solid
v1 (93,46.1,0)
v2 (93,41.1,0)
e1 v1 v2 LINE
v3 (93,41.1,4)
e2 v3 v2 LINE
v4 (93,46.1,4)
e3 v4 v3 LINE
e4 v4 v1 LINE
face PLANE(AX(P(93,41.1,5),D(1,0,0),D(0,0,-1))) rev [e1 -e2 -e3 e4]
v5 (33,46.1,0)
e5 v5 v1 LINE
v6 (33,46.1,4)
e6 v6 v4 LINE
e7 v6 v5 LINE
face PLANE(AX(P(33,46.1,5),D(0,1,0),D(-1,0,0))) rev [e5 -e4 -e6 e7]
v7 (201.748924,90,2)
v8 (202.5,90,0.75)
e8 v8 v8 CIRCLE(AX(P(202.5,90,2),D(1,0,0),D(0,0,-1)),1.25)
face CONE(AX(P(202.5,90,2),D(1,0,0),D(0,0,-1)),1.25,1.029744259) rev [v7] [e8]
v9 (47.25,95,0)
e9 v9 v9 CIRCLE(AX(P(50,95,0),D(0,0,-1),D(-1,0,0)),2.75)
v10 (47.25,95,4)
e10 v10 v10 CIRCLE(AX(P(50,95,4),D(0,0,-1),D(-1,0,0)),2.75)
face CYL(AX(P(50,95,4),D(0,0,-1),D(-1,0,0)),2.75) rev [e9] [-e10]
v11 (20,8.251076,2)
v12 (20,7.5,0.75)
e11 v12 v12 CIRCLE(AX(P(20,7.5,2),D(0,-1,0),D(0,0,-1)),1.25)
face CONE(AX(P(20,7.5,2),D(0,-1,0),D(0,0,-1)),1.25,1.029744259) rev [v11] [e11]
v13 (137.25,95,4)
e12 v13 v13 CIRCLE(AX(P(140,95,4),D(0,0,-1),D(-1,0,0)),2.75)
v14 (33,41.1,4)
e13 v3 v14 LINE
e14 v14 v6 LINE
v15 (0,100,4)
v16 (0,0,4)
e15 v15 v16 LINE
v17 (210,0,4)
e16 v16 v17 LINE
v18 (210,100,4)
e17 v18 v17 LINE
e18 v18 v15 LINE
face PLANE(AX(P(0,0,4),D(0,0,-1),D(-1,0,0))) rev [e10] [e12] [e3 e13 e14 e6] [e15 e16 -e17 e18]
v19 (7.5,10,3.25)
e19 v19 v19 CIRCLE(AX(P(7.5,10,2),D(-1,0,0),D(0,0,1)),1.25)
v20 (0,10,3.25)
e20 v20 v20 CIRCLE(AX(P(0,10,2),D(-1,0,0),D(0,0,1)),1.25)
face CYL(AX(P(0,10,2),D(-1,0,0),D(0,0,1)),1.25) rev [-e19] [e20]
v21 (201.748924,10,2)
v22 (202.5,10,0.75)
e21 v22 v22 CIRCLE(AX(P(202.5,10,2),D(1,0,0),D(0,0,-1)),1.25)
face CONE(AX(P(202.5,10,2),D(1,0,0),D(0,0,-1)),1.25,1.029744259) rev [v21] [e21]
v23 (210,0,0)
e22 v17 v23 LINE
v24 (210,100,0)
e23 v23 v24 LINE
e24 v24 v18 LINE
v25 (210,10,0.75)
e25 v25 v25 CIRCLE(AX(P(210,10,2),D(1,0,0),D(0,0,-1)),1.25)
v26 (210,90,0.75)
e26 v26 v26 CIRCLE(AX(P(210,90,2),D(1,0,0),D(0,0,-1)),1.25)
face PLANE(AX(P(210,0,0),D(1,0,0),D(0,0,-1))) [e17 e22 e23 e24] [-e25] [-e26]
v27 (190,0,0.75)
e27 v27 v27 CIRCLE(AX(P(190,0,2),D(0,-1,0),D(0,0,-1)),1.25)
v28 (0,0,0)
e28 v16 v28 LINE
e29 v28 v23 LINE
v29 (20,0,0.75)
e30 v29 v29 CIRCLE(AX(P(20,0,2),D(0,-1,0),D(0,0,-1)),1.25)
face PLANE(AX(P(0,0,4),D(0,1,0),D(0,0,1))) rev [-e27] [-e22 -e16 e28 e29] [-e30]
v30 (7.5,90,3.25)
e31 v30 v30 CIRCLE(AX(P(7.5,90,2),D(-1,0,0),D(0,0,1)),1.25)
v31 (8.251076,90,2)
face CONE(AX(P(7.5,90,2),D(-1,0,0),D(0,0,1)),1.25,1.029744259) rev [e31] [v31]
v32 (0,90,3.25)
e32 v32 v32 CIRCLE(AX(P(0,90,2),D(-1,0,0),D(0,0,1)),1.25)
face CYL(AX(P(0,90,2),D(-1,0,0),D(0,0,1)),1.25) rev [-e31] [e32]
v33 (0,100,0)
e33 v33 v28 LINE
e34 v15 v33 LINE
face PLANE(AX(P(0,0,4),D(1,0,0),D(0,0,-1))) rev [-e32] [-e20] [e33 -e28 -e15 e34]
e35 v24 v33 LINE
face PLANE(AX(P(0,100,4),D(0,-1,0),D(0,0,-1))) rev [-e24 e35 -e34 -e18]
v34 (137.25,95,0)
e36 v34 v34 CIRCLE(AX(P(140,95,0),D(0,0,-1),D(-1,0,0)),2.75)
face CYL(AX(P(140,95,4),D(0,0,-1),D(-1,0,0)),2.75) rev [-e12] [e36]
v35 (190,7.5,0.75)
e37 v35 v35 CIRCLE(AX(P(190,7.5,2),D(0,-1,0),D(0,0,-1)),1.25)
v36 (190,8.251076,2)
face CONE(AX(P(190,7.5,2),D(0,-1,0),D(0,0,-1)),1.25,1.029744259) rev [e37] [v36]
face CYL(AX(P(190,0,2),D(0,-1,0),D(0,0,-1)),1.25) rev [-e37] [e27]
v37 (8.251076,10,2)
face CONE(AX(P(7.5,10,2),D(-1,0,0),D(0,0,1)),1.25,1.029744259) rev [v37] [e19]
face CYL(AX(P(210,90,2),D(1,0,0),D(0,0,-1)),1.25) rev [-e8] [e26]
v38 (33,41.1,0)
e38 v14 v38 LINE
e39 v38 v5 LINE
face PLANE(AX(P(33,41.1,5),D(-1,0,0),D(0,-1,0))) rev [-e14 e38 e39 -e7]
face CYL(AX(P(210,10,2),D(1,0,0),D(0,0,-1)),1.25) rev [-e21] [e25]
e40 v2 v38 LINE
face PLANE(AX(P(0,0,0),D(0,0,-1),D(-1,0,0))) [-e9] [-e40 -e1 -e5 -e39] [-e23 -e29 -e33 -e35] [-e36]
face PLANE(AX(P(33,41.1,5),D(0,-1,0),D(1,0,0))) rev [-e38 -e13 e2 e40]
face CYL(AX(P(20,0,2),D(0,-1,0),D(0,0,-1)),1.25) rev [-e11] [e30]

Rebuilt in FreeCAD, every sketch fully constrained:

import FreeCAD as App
import Part
import Sketcher

V = App.Vector


def add_polygon(sketch, points):
    """Adds a closed chain of lines whose ends are joined by coincident constraints."""
    first, n = sketch.GeometryCount, len(points)
    for a, b in zip(points, points[1:] + points[:1]):
        sketch.addGeometry(Part.LineSegment(App.Vector(*a, 0), App.Vector(*b, 0)), False)
    for i in range(n):
        sketch.addConstraint(Sketcher.Constraint("Coincident", first + i, 2, first + (i + 1) % n, 1))

doc = App.newDocument("Part")
body = doc.addObject("PartDesign::Body", "Body")

# Sketch on XY plane
sketch1 = body.newObject("Sketcher::SketchObject", "Sketch")
sketch1.AttachmentSupport = (doc.getObject("XY_Plane"), [""])
sketch1.MapMode = "FlatFace"
add_polygon(sketch1, [(0, 100), (0, 0), (200, 0), (200, 100)])  # lines 0-3
sketch1.addConstraint([
    Sketcher.Constraint("Vertical", 0),
    Sketcher.Constraint("Horizontal", 1),
    Sketcher.Constraint("Vertical", 2),
    Sketcher.Constraint("Horizontal", 3),
    Sketcher.Constraint("Coincident", 0, 2, -1, 1),
    Sketcher.Constraint("DistanceX", 1, 1, 1, 2, 200.0),
    Sketcher.Constraint("DistanceY", 0, 2, 0, 1, 100.0),
])
pad1 = body.newObject("PartDesign::Pad", "Pad")
pad1.Profile = sketch1
pad1.Length = 4

# Sketch on XY plane
sketch2 = body.newObject("Sketcher::SketchObject", "Sketch001")
sketch2.AttachmentSupport = (doc.getObject("XY_Plane"), [""])
sketch2.MapMode = "FlatFace"
sketch2.addGeometry([
    Part.Circle(V(50, 95, 0), V(0, 0, 1), 2.8),
    Part.Circle(V(140, 95, 0), V(0, 0, 1), 2.8),
], False)
sketch2.addConstraint([
    Sketcher.Constraint("Equal", 0, 1),
    Sketcher.Constraint("Horizontal", 0, 3, 1, 3),
    Sketcher.Constraint("Diameter", 0, 5.5),
    Sketcher.Constraint("DistanceX", -1, 1, 0, 3, 50.0),
    Sketcher.Constraint("DistanceY", -1, 1, 0, 3, 95.0),
    Sketcher.Constraint("DistanceX", -1, 1, 1, 3, 140.0),
])
pocket1 = body.newObject("PartDesign::Pocket", "Pocket")
pocket1.Profile = sketch2
pocket1.Type = "ThroughAll"
pocket1.Reversed = True

# Sketch on YZ plane
sketch3 = body.newObject("Sketcher::SketchObject", "Sketch002")
sketch3.AttachmentSupport = (doc.getObject("YZ_Plane"), [""])
sketch3.MapMode = "FlatFace"
sketch3.AttachmentOffset = App.Placement(V(0, 0, 200), App.Rotation())
add_polygon(sketch3, [(100, 4), (0, 4), (0, 0), (100, 0)])  # lines 0-3
sketch3.addConstraint([
    Sketcher.Constraint("Horizontal", 0),
    Sketcher.Constraint("Vertical", 1),
    Sketcher.Constraint("Horizontal", 2),
    Sketcher.Constraint("Vertical", 3),
    Sketcher.Constraint("Coincident", 1, 2, -1, 1),
    Sketcher.Constraint("DistanceX", 0, 2, 0, 1, 100.0),
    Sketcher.Constraint("DistanceY", 1, 2, 1, 1, 4.0),
])
pad2 = body.newObject("PartDesign::Pad", "Pad001")
pad2.Profile = sketch3
pad2.Length = 10

# Sketch on XY plane
sketch4 = body.newObject("Sketcher::SketchObject", "Sketch003")
sketch4.AttachmentSupport = (doc.getObject("XY_Plane"), [""])
sketch4.MapMode = "FlatFace"
add_polygon(sketch4, [(93, 46), (93, 41), (33, 41), (33, 46)])  # lines 0-3
sketch4.addConstraint([
    Sketcher.Constraint("Vertical", 0),
    Sketcher.Constraint("Horizontal", 1),
    Sketcher.Constraint("Vertical", 2),
    Sketcher.Constraint("Horizontal", 3),
    Sketcher.Constraint("DistanceX", 1, 2, 1, 1, 60.0),
    Sketcher.Constraint("DistanceY", 0, 2, 0, 1, 5.0),
    Sketcher.Constraint("DistanceX", -1, 1, 0, 2, 93.0),
    Sketcher.Constraint("DistanceY", -1, 1, 0, 2, 41.1),
])
pocket2 = body.newObject("PartDesign::Pocket", "Pocket001")
pocket2.Profile = sketch4
pocket2.Length = 5
pocket2.Reversed = True

# Sketch on YZ plane
sketch5 = body.newObject("Sketcher::SketchObject", "Sketch004")
sketch5.AttachmentSupport = (doc.getObject("YZ_Plane"), [""])
sketch5.MapMode = "FlatFace"
sketch5.addGeometry([
    Part.Circle(V(10, 2, 0), V(0, 0, 1), 1.2),
    Part.Circle(V(90, 2, 0), V(0, 0, 1), 1.2),
], False)
sketch5.addConstraint([
    Sketcher.Constraint("Equal", 0, 1),
    Sketcher.Constraint("Horizontal", 0, 3, 1, 3),
    Sketcher.Constraint("Diameter", 0, 2.5),
    Sketcher.Constraint("DistanceX", -1, 1, 0, 3, 10.0),
    Sketcher.Constraint("DistanceY", -1, 1, 0, 3, 2.0),
    Sketcher.Constraint("DistanceX", -1, 1, 1, 3, 90.0),
])
doc.recompute()
hole = body.newObject("PartDesign::Hole", "Hole")
hole.Profile = sketch5
hole.ThreadType = "None"
hole.Diameter = 2.5
hole.DepthType = "Dimension"
hole.Depth = 7.5
hole.DrillPoint = "Angled"
hole.DrillPointAngle = 118
hole.Reversed = True

# Sketch on YZ plane
sketch6 = body.newObject("Sketcher::SketchObject", "Sketch005")
sketch6.AttachmentSupport = (doc.getObject("YZ_Plane"), [""])
sketch6.MapMode = "FlatFace"
sketch6.AttachmentOffset = App.Placement(V(0, 0, 210), App.Rotation())
sketch6.addGeometry([
    Part.Circle(V(10, 2, 0), V(0, 0, 1), 1.2),
    Part.Circle(V(90, 2, 0), V(0, 0, 1), 1.2),
], False)
sketch6.addConstraint([
    Sketcher.Constraint("Equal", 0, 1),
    Sketcher.Constraint("Horizontal", 0, 3, 1, 3),
    Sketcher.Constraint("Diameter", 0, 2.5),
    Sketcher.Constraint("DistanceX", -1, 1, 0, 3, 10.0),
    Sketcher.Constraint("DistanceY", -1, 1, 0, 3, 2.0),
    Sketcher.Constraint("DistanceX", -1, 1, 1, 3, 90.0),
])
doc.recompute()
hole2 = body.newObject("PartDesign::Hole", "Hole001")
hole2.Profile = sketch6
hole2.ThreadType = "None"
hole2.Diameter = 2.5
hole2.DepthType = "Dimension"
hole2.Depth = 7.5
hole2.DrillPoint = "Angled"
hole2.DrillPointAngle = 118

# Sketch on XZ plane
sketch7 = body.newObject("Sketcher::SketchObject", "Sketch006")
sketch7.AttachmentSupport = (doc.getObject("XZ_Plane"), [""])
sketch7.MapMode = "FlatFace"
sketch7.addGeometry([
    Part.Circle(V(20, 2, 0), V(0, 0, 1), 1.2),
    Part.Circle(V(190, 2, 0), V(0, 0, 1), 1.2),
], False)
sketch7.addConstraint([
    Sketcher.Constraint("Equal", 0, 1),
    Sketcher.Constraint("Horizontal", 0, 3, 1, 3),
    Sketcher.Constraint("Diameter", 0, 2.5),
    Sketcher.Constraint("DistanceX", -1, 1, 0, 3, 20.0),
    Sketcher.Constraint("DistanceY", -1, 1, 0, 3, 2.0),
    Sketcher.Constraint("DistanceX", -1, 1, 1, 3, 190.0),
])
doc.recompute()
hole3 = body.newObject("PartDesign::Hole", "Hole002")
hole3.Profile = sketch7
hole3.ThreadType = "None"
hole3.Diameter = 2.5
hole3.DepthType = "Dimension"
hole3.Depth = 7.5
hole3.DrillPoint = "Angled"
hole3.DrillPointAngle = 118

doc.recompute()
